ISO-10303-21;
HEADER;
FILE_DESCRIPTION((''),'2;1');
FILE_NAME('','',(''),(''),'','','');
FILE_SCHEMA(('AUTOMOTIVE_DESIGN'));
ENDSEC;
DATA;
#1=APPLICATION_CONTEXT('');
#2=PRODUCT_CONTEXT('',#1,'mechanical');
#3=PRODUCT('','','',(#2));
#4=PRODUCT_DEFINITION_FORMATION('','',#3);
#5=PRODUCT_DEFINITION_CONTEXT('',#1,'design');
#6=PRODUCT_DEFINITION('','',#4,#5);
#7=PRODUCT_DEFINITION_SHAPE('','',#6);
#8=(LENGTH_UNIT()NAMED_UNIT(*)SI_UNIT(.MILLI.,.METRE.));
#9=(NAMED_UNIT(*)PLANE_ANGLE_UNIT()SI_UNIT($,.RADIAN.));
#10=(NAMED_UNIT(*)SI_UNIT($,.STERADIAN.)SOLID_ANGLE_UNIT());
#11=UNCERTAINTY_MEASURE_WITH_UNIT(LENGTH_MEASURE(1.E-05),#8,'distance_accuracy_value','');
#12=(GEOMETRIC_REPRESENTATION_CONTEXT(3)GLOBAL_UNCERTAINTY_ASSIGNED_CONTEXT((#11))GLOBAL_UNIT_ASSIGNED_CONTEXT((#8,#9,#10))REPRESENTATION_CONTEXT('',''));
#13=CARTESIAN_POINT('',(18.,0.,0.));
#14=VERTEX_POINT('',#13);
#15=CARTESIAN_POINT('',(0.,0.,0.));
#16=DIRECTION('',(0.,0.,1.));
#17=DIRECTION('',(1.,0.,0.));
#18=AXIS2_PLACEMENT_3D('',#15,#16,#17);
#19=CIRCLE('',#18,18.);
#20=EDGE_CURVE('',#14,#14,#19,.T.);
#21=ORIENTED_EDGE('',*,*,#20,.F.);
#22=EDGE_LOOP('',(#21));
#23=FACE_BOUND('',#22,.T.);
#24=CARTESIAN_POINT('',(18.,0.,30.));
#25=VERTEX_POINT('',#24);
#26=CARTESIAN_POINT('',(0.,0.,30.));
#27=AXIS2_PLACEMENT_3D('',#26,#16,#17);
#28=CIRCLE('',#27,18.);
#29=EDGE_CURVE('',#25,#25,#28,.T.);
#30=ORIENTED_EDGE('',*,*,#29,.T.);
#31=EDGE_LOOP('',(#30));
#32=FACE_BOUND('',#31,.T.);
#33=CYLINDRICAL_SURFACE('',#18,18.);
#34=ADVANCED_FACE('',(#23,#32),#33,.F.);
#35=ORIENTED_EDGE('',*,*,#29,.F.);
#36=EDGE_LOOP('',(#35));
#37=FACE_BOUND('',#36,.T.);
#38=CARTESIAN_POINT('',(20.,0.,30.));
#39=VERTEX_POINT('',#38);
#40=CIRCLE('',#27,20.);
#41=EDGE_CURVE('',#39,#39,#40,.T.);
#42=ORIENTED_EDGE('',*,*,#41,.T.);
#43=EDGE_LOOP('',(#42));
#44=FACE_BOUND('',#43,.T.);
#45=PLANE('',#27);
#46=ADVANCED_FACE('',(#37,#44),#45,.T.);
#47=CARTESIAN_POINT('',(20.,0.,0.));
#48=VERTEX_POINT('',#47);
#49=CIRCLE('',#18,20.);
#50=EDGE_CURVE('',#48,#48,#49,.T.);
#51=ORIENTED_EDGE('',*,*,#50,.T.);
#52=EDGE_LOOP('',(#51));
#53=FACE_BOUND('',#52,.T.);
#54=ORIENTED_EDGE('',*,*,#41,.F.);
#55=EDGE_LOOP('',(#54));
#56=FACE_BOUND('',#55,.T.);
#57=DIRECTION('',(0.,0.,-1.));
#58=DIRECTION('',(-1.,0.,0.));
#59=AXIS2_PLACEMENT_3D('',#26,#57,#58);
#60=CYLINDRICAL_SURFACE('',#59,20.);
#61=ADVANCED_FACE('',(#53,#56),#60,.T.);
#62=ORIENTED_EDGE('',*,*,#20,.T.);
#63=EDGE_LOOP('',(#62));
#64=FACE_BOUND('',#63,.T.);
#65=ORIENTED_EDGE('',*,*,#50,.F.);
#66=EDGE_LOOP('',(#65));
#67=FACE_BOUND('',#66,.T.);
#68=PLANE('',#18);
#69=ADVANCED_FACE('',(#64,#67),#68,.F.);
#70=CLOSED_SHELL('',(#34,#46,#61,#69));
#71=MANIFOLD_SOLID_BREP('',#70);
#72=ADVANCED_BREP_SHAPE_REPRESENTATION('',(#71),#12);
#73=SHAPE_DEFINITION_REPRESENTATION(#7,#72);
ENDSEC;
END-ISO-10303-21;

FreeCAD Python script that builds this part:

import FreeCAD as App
import Part
import Sketcher

V = App.Vector

doc = App.newDocument("Part")
params = doc.addObject("Spreadsheet::Sheet", "Params")
for row, (alias, value) in enumerate([
    ("sketch1_diameter", "40 mm"),
    ("pad1_length", "30 mm"),
    ("sketch2_diameter", "36 mm"),
], start=1):
    params.set(f"A{row}", alias)
    params.set(f"B{row}", "=" + value)
    params.setAlias(f"B{row}", alias)

body = doc.addObject("PartDesign::Body", "Body")

# Sketch on XY plane
sketch1 = body.newObject("Sketcher::SketchObject", "Sketch")
sketch1.AttachmentSupport = (doc.getObject("XY_Plane"), [""])
sketch1.MapMode = "FlatFace"
sketch1.addGeometry(Part.Circle(V(0, 0, 0), V(0, 0, 1), 20), False)
sketch1.addConstraint([
    Sketcher.Constraint("Coincident", 0, 3, -1, 1),
    Sketcher.Constraint("Diameter", 0, 40.0),
])
sketch1.setExpression("Constraints[1]", "Params.sketch1_diameter")
pad1 = body.newObject("PartDesign::Pad", "Pad")
pad1.Profile = sketch1
pad1.setExpression("Length", "Params.pad1_length")

# Sketch on XY plane
sketch2 = body.newObject("Sketcher::SketchObject", "Sketch001")
sketch2.AttachmentSupport = (doc.getObject("XY_Plane"), [""])
sketch2.MapMode = "FlatFace"
sketch2.AttachmentOffset = App.Placement(V(0, 0, 30), App.Rotation())
sketch2.addGeometry(Part.Circle(V(0, 0, 0), V(0, 0, 1), 18), False)
sketch2.addConstraint([
    Sketcher.Constraint("Coincident", 0, 3, -1, 1),
    Sketcher.Constraint("Diameter", 0, 36.0),
])
sketch2.setExpression("Constraints[1]", "Params.sketch2_diameter")
pocket1 = body.newObject("PartDesign::Pocket", "Pocket")
pocket1.Profile = sketch2
pocket1.Type = "ThroughAll"

doc.recompute()
